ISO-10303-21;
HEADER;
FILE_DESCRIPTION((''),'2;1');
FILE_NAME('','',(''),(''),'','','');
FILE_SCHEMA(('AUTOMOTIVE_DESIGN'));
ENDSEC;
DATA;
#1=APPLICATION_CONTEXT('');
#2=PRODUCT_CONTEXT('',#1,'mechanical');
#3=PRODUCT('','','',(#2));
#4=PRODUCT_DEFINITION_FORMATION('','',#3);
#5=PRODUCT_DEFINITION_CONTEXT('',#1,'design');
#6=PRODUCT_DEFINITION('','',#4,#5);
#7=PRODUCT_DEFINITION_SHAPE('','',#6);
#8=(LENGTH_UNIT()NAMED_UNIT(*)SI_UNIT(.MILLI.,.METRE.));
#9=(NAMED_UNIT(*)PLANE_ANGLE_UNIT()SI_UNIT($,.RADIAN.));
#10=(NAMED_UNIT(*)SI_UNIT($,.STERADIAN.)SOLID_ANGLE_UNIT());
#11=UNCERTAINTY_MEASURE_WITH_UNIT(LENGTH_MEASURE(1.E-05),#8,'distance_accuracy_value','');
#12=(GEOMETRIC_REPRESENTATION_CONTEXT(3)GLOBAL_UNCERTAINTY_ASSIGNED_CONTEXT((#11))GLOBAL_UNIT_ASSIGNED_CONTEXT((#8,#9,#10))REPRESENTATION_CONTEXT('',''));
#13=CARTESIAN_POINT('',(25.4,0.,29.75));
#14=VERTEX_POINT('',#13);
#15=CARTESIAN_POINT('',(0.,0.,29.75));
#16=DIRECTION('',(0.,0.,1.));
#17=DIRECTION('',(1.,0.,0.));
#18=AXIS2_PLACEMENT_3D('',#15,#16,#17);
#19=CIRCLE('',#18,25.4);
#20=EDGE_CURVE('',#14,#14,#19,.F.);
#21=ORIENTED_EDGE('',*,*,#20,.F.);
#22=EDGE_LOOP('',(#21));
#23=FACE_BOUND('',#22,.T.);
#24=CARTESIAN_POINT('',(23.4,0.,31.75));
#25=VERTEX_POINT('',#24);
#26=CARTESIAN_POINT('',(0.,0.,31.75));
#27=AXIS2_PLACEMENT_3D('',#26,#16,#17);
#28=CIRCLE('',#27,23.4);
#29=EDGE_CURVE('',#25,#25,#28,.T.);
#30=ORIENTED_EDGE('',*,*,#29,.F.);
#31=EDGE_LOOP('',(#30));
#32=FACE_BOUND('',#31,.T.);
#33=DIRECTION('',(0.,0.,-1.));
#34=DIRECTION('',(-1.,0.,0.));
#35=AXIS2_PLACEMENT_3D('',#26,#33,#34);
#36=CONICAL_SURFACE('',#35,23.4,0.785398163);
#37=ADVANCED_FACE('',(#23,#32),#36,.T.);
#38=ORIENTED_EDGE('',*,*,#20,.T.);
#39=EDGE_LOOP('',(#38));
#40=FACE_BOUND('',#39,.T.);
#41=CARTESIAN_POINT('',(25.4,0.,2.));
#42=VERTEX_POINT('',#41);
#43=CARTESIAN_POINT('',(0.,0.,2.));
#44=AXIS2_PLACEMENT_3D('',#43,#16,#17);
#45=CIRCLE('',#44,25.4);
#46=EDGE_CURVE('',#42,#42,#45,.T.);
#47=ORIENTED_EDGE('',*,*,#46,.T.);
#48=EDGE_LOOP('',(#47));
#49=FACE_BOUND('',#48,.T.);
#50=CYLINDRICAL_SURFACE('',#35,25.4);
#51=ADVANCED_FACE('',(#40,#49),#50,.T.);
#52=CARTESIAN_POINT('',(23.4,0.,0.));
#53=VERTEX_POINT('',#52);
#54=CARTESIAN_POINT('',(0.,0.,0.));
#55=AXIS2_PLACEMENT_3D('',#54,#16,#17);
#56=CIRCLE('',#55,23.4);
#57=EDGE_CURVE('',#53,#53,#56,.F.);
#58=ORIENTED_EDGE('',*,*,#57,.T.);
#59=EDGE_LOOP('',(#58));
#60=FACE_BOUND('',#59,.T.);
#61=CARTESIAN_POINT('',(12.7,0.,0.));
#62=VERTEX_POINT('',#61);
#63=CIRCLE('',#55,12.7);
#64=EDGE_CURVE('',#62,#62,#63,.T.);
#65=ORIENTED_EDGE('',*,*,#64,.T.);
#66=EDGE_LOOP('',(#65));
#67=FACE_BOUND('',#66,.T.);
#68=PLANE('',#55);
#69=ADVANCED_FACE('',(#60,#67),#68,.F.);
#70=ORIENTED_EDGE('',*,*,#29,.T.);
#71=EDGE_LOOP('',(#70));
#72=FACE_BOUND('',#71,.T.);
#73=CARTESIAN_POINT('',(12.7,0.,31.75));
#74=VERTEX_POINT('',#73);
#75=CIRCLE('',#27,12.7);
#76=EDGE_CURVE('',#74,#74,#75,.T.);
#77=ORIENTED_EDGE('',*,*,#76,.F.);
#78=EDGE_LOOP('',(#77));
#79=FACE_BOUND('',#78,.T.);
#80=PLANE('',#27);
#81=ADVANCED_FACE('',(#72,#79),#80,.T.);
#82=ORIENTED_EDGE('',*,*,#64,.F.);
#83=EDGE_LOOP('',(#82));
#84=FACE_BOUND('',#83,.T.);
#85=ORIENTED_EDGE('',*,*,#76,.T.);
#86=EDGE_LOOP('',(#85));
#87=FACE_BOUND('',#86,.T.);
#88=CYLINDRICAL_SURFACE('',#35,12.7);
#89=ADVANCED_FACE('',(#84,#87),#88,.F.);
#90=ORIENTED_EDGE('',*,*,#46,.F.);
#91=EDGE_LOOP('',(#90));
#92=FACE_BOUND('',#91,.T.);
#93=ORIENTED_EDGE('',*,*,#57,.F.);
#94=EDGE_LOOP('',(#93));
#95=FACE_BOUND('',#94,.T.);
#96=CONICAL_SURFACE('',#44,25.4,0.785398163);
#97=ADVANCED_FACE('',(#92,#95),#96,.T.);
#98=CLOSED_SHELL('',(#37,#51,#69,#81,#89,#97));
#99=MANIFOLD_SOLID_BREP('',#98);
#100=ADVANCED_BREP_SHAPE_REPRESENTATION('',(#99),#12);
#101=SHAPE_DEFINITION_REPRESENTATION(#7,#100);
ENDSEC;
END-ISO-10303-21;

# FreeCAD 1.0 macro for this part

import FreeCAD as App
import Part
import Sketcher

V = App.Vector
Q = App.Units.Quantity


def edges_at(feature, points):
    """Names of the edges that pass closest to the given points."""
    edges = feature.Shape.Edges
    near = lambda p: min(range(len(edges)), key=lambda i: edges[i].distToShape(Part.Vertex(*p))[0])
    return sorted({f"Edge{near(p) + 1}" for p in points})

doc = App.newDocument("Part")
body = doc.addObject("PartDesign::Body", "Body")

# Sketch on XY plane
sketch1 = body.newObject("Sketcher::SketchObject", "Sketch")
sketch1.AttachmentSupport = (doc.getObject("XY_Plane"), [""])
sketch1.MapMode = "FlatFace"
sketch1.addGeometry(Part.Circle(V(0, 0, 0), V(0, 0, 1), 25.4), False)
sketch1.addGeometry(Part.Circle(V(0, 0, 0), V(0, 0, 1), 12.7), False)
sketch1.addConstraint(Sketcher.Constraint("Coincident", 0, 3, -1, 1))
sketch1.addConstraint(Sketcher.Constraint("Coincident", 1, 3, -1, 1))
sketch1.addConstraint(Sketcher.Constraint("Diameter", 0, Q("2 in")))
sketch1.addConstraint(Sketcher.Constraint("Diameter", 1, Q("1 in")))
pad1 = body.newObject("PartDesign::Pad", "Pad")
pad1.Profile = sketch1
pad1.Length = Q("1.25 in")
doc.recompute()

chamfer = body.newObject("PartDesign::Chamfer", "Chamfer")
chamfer.Base = (pad1, edges_at(pad1, [(-25.4, 0, 31.75), (-25.4, 0, 0)]))
chamfer.Size = 2

doc.recompute()
